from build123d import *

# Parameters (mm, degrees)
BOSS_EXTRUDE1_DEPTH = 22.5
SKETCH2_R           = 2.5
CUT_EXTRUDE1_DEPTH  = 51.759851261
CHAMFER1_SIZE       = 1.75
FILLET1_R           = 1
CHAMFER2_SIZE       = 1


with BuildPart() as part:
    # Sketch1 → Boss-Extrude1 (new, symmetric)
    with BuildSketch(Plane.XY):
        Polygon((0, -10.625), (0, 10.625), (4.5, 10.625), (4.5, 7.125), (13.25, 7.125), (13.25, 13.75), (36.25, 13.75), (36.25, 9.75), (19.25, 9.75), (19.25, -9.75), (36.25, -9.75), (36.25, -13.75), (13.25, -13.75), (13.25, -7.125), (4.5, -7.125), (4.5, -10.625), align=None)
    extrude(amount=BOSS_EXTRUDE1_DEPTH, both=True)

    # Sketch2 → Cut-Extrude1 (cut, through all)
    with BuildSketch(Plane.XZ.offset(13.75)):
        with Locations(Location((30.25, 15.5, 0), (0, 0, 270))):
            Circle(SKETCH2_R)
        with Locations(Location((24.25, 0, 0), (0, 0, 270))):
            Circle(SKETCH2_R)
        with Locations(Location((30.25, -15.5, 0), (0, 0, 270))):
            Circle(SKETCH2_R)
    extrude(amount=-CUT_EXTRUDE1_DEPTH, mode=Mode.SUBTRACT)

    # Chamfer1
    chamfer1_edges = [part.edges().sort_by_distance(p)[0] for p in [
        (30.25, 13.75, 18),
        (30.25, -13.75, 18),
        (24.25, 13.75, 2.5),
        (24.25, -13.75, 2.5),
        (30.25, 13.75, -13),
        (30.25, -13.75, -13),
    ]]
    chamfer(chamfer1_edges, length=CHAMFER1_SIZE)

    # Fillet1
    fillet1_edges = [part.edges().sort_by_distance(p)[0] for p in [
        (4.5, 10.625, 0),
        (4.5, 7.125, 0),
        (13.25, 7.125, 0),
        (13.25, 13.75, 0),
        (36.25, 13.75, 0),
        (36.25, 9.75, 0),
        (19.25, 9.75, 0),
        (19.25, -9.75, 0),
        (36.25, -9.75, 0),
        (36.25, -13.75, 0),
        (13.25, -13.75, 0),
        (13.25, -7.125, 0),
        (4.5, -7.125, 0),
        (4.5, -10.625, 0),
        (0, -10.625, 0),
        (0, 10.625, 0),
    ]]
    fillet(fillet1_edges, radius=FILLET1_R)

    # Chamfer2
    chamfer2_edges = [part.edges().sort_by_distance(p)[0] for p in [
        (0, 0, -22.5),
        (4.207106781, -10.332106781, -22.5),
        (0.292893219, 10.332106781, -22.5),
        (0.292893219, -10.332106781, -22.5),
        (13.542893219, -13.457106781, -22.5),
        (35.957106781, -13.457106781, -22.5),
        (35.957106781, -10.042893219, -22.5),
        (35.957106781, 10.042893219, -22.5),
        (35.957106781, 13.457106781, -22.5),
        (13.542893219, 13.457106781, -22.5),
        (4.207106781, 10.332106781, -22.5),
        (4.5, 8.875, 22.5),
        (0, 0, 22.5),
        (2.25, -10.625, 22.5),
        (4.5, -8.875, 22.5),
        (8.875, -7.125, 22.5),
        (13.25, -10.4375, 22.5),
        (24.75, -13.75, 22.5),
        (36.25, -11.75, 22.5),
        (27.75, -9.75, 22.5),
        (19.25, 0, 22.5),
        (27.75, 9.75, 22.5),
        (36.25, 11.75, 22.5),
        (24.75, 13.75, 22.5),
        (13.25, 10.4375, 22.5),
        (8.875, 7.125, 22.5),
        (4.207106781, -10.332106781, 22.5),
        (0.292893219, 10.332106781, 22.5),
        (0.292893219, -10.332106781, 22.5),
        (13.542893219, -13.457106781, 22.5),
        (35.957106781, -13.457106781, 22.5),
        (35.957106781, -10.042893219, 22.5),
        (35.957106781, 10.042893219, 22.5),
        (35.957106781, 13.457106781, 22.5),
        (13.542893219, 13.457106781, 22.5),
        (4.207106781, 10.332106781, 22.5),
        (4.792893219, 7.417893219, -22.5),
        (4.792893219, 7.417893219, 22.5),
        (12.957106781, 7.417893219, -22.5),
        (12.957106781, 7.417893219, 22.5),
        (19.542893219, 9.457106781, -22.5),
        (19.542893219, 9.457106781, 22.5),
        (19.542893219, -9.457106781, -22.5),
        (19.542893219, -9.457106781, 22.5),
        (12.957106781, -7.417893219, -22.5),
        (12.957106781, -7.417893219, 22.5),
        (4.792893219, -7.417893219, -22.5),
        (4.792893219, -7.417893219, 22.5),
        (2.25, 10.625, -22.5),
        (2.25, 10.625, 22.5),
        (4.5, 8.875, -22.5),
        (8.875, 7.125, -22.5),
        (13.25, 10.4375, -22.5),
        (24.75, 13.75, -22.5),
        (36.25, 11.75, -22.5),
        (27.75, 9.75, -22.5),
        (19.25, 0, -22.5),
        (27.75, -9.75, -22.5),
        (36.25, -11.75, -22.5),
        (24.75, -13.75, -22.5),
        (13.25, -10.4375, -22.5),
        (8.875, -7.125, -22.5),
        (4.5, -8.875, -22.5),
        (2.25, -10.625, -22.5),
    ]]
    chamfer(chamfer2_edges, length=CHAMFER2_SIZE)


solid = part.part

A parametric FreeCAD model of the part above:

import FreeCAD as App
import Part
import Sketcher


def edges_at(feature, points):
    """Names of the edges that pass closest to the given points."""
    edges = feature.Shape.Edges
    near = lambda p: min(range(len(edges)), key=lambda i: edges[i].distToShape(Part.Vertex(*p))[0])
    return sorted({f"Edge{near(p) + 1}" for p in points})


def add_polygon(sketch, points):
    """Adds a closed chain of lines whose ends are joined by coincident constraints."""
    first, n = sketch.GeometryCount, len(points)
    for a, b in zip(points, points[1:] + points[:1]):
        sketch.addGeometry(Part.LineSegment(App.Vector(*a, 0), App.Vector(*b, 0)), False)
    for i in range(n):
        sketch.addConstraint(Sketcher.Constraint("Coincident", first + i, 2, first + (i + 1) % n, 1))

doc = App.newDocument("Part")
body = doc.addObject("PartDesign::Body", "Body")

# Sketch on XY plane
sketch1 = body.newObject("Sketcher::SketchObject", "Sketch")
sketch1.AttachmentSupport = (doc.getObject("XY_Plane"), [""])
sketch1.MapMode = "FlatFace"
add_polygon(sketch1, [(0, 10.6), (0, -10.6), (4.5, -10.6), (4.5, -7.1), (13.2, -7.1), (13.2, -13.8), (36.2, -13.8), (36.2, -9.8), (19.2, -9.8), (19.2, 9.8), (36.2, 9.8), (36.2, 13.8), (13.2, 13.8), (13.2, 7.1), (4.5, 7.1), (4.5, 10.6)])  # lines 0-15
sketch1.addConstraint([
    Sketcher.Constraint("Vertical", 0),
    Sketcher.Constraint("Horizontal", 1),
    Sketcher.Constraint("Vertical", 2),
    Sketcher.Constraint("Horizontal", 3),
    Sketcher.Constraint("Vertical", 4),
    Sketcher.Constraint("Horizontal", 5),
    Sketcher.Constraint("Vertical", 6),
    Sketcher.Constraint("Horizontal", 7),
    Sketcher.Constraint("Vertical", 8),
    Sketcher.Constraint("Horizontal", 9),
    Sketcher.Constraint("Vertical", 10),
    Sketcher.Constraint("Horizontal", 11),
    Sketcher.Constraint("Vertical", 12),
    Sketcher.Constraint("Horizontal", 13),
    Sketcher.Constraint("Vertical", 14),
    Sketcher.Constraint("Horizontal", 15),
    Sketcher.Constraint("Symmetric", 0, 2, 15, 2, -1, 1),
    Sketcher.Constraint("Symmetric", 6, 2, 9, 2, -1),
    Sketcher.Constraint("Symmetric", 4, 2, 11, 2, -1),
    Sketcher.Constraint("Symmetric", 2, 2, 13, 2, -1),
    Sketcher.Constraint("DistanceX", 5, 1, 5, 2, 23.0),
    Sketcher.Constraint("DistanceX", 7, 2, 7, 1, 17.0),
    Sketcher.Constraint("DistanceY", 6, 1, 6, 2, 4.0),
    Sketcher.Constraint("DistanceX", 1, 1, 1, 2, 4.5),
    Sketcher.Constraint("DistanceY", 2, 1, 2, 2, 3.5),
    Sketcher.Constraint("DistanceY", 8, 1, 8, 2, 19.5),
    Sketcher.Constraint("DistanceX", 3, 1, 3, 2, 8.75),
    Sketcher.Constraint("DistanceY", 0, 2, 0, 1, 21.25),
])
pad1 = body.newObject("PartDesign::Pad", "Pad")
pad1.Profile = sketch1
pad1.Length = 45
pad1.Midplane = True

# Sketch on XZ plane
sketch2 = body.newObject("Sketcher::SketchObject", "Sketch001")
sketch2.AttachmentSupport = (doc.getObject("XZ_Plane"), [""])
sketch2.MapMode = "FlatFace"
sketch2.AttachmentOffset = App.Placement(App.Vector(0, 0, 13.75), App.Rotation())
sketch2.addGeometry([
    Part.Circle(App.Vector(30.2, 15.5, 0), App.Vector(0, 0, 1), 2.5),
    Part.Circle(App.Vector(24.2, 0, 0), App.Vector(0, 0, 1), 2.5),
    Part.Circle(App.Vector(30.2, -15.5, 0), App.Vector(0, 0, 1), 2.5),
], False)
sketch2.addConstraint([
    Sketcher.Constraint("Equal", 0, 1),
    Sketcher.Constraint("Equal", 1, 2),
    Sketcher.Constraint("Symmetric", 0, 3, 2, 3, -1),
    Sketcher.Constraint("PointOnObject", 1, 3, -1),
    Sketcher.Constraint("Diameter", 0, 5.0),
    Sketcher.Constraint("DistanceX", 1, 3, 0, 3, 6.0),
    Sketcher.Constraint("DistanceY", 2, 3, 0, 3, 31.0),
    Sketcher.Constraint("DistanceX", -1, 1, 0, 3, 30.25),
])
pocket1 = body.newObject("PartDesign::Pocket", "Pocket")
pocket1.Profile = sketch2
pocket1.Type = "ThroughAll"
doc.recompute()

chamfer = body.newObject("PartDesign::Chamfer", "Chamfer")
chamfer.Base = (pocket1, edges_at(pocket1, [
    (30.25, 13.75, 18),
    (30.25, -13.75, 18),
    (24.25, 13.75, 2.5),
    (24.25, -13.75, 2.5),
    (30.25, 13.75, -13),
    (30.25, -13.75, -13),
]))
chamfer.Size = 1.75
doc.recompute()

fillet = body.newObject("PartDesign::Fillet", "Fillet")
fillet.Base = (chamfer, edges_at(chamfer, [
    (4.5, 10.625, 0),
    (4.5, 7.125, 0),
    (13.25, 7.125, 0),
    (13.25, 13.75, 0),
    (36.25, 13.75, 0),
    (36.25, 9.75, 0),
    (19.25, 9.75, 0),
    (19.25, -9.75, 0),
    (36.25, -9.75, 0),
    (36.25, -13.75, 0),
    (13.25, -13.75, 0),
    (13.25, -7.125, 0),
    (4.5, -7.125, 0),
    (4.5, -10.625, 0),
    (0, -10.625, 0),
    (0, 10.625, 0),
]))
fillet.Radius = 1
doc.recompute()

chamfer2 = body.newObject("PartDesign::Chamfer", "Chamfer001")
chamfer2.Base = (fillet, edges_at(fillet, [
    (0, 0, -22.5),
    (4.207, -10.332, -22.5),
    (0.293, 10.332, -22.5),
    (0.293, -10.332, -22.5),
    (13.543, -13.457, -22.5),
    (35.957, -13.457, -22.5),
    (35.957, -10.043, -22.5),
    (35.957, 10.043, -22.5),
    (35.957, 13.457, -22.5),
    (13.543, 13.457, -22.5),
    (4.207, 10.332, -22.5),
    (4.5, 8.875, 22.5),
    (0, 0, 22.5),
    (2.25, -10.625, 22.5),
    (4.5, -8.875, 22.5),
    (8.875, -7.125, 22.5),
    (13.25, -10.438, 22.5),
    (24.75, -13.75, 22.5),
    (36.25, -11.75, 22.5),
    (27.75, -9.75, 22.5),
    (19.25, 0, 22.5),
    (27.75, 9.75, 22.5),
    (36.25, 11.75, 22.5),
    (24.75, 13.75, 22.5),
    (13.25, 10.438, 22.5),
    (8.875, 7.125, 22.5),
    (4.207, -10.332, 22.5),
    (0.293, 10.332, 22.5),
    (0.293, -10.332, 22.5),
    (13.543, -13.457, 22.5),
    (35.957, -13.457, 22.5),
    (35.957, -10.043, 22.5),
    (35.957, 10.043, 22.5),
    (35.957, 13.457, 22.5),
    (13.543, 13.457, 22.5),
    (4.207, 10.332, 22.5),
    (4.793, 7.418, -22.5),
    (4.793, 7.418, 22.5),
    (12.957, 7.418, -22.5),
    (12.957, 7.418, 22.5),
    (19.543, 9.457, -22.5),
    (19.543, 9.457, 22.5),
    (19.543, -9.457, -22.5),
    (19.543, -9.457, 22.5),
    (12.957, -7.418, -22.5),
    (12.957, -7.418, 22.5),
    (4.793, -7.418, -22.5),
    (4.793, -7.418, 22.5),
    (2.25, 10.625, -22.5),
    (2.25, 10.625, 22.5),
    (4.5, 8.875, -22.5),
    (8.875, 7.125, -22.5),
    (13.25, 10.438, -22.5),
    (24.75, 13.75, -22.5),
    (36.25, 11.75, -22.5),
    (27.75, 9.75, -22.5),
    (19.25, 0, -22.5),
    (27.75, -9.75, -22.5),
    (36.25, -11.75, -22.5),
    (24.75, -13.75, -22.5),
    (13.25, -10.438, -22.5),
    (8.875, -7.125, -22.5),
    (4.5, -8.875, -22.5),
    (2.25, -10.625, -22.5),
]))
chamfer2.Size = 1

doc.recompute()
